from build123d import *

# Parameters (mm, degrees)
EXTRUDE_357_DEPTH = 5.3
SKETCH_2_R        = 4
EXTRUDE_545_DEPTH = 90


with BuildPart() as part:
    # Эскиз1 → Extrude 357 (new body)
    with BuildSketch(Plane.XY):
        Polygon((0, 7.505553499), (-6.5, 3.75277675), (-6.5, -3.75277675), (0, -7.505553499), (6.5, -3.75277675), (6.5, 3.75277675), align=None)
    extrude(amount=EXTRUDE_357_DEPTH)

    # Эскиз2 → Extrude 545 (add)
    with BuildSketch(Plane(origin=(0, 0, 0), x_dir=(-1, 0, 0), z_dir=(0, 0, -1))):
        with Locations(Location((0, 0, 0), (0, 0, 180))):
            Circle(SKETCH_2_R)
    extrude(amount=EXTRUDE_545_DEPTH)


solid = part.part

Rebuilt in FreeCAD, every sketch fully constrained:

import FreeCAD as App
import Part
import Sketcher
from FreeCAD import Vector
Q = App.Units.Quantity

doc = App.newDocument("Part")
body = doc.addObject("PartDesign::Body", "Body")

# Sketch on XY plane
sketch1 = body.newObject("Sketcher::SketchObject", "Sketch")
sketch1.AttachmentSupport = (doc.getObject("XY_Plane"), [""])
sketch1.MapMode = "FlatFace"
sketch1.addGeometry([
    Part.LineSegment(Vector(0, 8, 0), Vector(-6, 4, 0)),  # 0
    Part.LineSegment(Vector(-6, 4, 0), Vector(-6, -4, 0)),  # 1
    Part.LineSegment(Vector(-6, -4, 0), Vector(0, -8, 0)),  # 2
    Part.LineSegment(Vector(0, -8, 0), Vector(6, -4, 0)),  # 3
    Part.LineSegment(Vector(6, -4, 0), Vector(6, 4, 0)),  # 4
    Part.LineSegment(Vector(6, 4, 0), Vector(0, 8, 0)),  # 5
], False)
sketch1.addConstraint([
    Sketcher.Constraint("Coincident", 0, 2, 1, 1),
    Sketcher.Constraint("Coincident", 1, 2, 2, 1),
    Sketcher.Constraint("Coincident", 2, 2, 3, 1),
    Sketcher.Constraint("Coincident", 3, 2, 4, 1),
    Sketcher.Constraint("Coincident", 4, 2, 5, 1),
    Sketcher.Constraint("Coincident", 5, 2, 0, 1),
    Sketcher.Constraint("Vertical", 1),
    Sketcher.Constraint("Vertical", 4),
    Sketcher.Constraint("Symmetric", 0, 2, 3, 2, -1, 1),
    Sketcher.Constraint("Symmetric", 2, 2, 5, 2, -1, 1),
    Sketcher.Constraint("PointOnObject", 2, 2, -2),
    Sketcher.Constraint("Parallel", 2, 5),
    Sketcher.Constraint("Horizontal", 1, 2, 3, 2),
    Sketcher.Constraint("Angle", 0, Q("-150 deg")),
    Sketcher.Constraint("DistanceX", 1, 2, 3, 2, Q("13 mm")),
    Sketcher.Constraint("DistanceY", 1, 2, 1, 1, Q("7.505554 mm")),
])
pad1 = body.newObject("PartDesign::Pad", "Pad")
pad1.Profile = sketch1
pad1.Length = 5.3

# Sketch on XY plane
sketch2 = body.newObject("Sketcher::SketchObject", "Sketch001")
sketch2.AttachmentSupport = (doc.getObject("XY_Plane"), [""])
sketch2.MapMode = "FlatFace"
sketch2.addGeometry(Part.Circle(Vector(0, 0, 0), Vector(0, 0, 1), 4), False)
sketch2.addConstraint([
    Sketcher.Constraint("Coincident", 0, 3, -1, 1),
    Sketcher.Constraint("Diameter", 0, Q("8 mm")),
])
pad2 = body.newObject("PartDesign::Pad", "Pad001")
pad2.Profile = sketch2
pad2.Length = 90
pad2.Reversed = True

doc.recompute()
